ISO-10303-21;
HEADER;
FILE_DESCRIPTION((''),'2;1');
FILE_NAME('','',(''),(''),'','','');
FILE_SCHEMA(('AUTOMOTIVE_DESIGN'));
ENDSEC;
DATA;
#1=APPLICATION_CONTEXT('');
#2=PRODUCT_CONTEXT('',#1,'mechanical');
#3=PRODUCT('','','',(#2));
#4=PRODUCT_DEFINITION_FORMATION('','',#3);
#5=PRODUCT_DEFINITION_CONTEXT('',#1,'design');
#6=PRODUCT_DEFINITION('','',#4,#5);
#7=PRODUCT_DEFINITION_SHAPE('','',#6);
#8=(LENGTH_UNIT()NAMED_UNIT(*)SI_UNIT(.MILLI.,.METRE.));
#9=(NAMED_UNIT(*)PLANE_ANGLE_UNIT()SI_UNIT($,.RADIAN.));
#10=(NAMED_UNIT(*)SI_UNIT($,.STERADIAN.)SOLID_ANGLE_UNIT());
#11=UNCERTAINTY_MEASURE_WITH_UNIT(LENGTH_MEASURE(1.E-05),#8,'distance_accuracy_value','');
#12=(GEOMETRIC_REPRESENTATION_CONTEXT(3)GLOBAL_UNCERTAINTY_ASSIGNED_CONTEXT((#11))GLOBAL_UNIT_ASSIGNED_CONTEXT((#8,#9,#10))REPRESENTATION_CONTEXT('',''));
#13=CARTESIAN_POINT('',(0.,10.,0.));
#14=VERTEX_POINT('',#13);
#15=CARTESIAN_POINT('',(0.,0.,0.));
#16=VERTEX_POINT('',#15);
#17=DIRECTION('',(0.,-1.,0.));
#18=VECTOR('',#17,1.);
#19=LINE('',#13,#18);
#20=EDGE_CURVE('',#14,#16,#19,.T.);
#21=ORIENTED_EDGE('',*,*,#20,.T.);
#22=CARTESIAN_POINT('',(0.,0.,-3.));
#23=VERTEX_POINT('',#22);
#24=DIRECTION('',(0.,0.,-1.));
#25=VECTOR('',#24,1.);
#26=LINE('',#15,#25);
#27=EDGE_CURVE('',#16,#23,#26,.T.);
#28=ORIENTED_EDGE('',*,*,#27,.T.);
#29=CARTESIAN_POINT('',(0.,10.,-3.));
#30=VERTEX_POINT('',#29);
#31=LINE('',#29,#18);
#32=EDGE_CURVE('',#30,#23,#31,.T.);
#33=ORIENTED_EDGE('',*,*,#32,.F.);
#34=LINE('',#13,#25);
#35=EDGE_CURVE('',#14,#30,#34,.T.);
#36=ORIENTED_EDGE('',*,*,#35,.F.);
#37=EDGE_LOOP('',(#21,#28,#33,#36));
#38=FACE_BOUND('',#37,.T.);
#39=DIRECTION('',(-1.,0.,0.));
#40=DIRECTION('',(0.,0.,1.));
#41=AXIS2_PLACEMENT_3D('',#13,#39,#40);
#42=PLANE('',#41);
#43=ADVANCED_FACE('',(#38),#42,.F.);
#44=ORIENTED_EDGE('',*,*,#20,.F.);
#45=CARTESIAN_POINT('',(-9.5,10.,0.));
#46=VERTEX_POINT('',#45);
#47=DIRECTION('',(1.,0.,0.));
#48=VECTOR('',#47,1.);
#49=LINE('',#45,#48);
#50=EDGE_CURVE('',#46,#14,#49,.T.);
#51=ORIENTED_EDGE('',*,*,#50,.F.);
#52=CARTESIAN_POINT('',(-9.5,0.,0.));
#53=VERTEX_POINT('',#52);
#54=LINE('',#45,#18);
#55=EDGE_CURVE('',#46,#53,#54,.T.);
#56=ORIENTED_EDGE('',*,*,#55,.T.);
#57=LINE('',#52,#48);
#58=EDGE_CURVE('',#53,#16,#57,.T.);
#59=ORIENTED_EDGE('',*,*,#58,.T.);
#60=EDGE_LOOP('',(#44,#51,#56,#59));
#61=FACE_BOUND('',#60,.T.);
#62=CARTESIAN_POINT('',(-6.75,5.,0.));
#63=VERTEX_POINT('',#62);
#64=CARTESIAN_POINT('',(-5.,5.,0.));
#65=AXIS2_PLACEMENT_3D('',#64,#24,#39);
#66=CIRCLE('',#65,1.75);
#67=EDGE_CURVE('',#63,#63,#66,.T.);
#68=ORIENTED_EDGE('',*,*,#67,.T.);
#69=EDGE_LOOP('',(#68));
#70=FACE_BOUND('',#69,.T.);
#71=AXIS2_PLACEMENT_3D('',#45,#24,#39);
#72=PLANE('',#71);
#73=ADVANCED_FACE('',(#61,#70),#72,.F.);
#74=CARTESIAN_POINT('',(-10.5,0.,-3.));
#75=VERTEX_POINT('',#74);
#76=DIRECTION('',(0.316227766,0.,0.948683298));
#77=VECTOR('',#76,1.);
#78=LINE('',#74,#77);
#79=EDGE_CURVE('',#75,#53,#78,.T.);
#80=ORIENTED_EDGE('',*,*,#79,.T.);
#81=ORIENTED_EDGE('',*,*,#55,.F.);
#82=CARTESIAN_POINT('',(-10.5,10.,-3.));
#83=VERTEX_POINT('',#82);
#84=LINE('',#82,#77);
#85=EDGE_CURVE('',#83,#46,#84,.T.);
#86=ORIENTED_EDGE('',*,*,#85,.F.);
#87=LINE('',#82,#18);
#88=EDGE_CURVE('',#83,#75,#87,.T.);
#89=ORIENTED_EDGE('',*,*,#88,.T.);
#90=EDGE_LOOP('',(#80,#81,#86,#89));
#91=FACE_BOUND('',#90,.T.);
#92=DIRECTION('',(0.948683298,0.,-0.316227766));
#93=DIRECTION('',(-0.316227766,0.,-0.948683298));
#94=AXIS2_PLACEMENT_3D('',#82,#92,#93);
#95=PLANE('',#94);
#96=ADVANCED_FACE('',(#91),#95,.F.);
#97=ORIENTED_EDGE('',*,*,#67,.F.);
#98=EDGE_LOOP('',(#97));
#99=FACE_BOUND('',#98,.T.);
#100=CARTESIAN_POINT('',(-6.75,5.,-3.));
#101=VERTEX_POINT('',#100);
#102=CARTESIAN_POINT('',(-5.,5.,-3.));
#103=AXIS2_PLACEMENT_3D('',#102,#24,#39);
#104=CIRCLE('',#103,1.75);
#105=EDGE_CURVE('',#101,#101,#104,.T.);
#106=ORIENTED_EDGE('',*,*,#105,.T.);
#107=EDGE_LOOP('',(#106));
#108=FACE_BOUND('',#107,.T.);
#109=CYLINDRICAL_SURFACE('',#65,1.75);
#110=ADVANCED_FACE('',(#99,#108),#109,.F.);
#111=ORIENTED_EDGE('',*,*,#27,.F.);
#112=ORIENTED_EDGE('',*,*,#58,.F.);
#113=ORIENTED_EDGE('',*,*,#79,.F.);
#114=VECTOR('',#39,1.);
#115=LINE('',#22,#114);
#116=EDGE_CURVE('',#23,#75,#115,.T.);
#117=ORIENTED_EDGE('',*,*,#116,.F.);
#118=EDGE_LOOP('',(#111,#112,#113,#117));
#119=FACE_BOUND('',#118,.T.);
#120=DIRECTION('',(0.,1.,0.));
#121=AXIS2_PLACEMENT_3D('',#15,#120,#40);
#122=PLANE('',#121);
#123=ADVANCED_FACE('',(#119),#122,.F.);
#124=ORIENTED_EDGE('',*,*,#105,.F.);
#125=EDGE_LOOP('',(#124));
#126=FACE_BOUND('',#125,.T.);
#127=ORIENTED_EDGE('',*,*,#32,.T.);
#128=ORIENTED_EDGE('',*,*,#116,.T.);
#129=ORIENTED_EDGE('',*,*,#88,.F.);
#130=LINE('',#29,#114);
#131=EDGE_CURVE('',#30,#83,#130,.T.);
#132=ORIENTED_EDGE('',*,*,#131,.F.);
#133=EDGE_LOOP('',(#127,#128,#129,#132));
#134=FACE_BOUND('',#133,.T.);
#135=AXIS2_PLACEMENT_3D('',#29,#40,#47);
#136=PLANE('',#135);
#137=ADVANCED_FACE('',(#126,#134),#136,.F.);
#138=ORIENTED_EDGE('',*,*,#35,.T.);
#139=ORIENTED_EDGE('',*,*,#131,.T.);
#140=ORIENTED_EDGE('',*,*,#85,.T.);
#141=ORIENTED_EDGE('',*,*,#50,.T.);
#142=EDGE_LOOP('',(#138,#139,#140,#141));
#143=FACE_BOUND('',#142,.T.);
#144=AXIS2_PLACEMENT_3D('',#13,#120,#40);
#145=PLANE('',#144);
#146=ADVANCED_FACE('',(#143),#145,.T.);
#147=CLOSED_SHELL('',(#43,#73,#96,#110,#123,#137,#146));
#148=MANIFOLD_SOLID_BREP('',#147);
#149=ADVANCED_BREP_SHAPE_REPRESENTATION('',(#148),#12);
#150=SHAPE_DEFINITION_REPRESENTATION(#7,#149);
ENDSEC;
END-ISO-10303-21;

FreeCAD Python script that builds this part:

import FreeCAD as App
import Part
import Sketcher

doc = App.newDocument("Part")
body = doc.addObject("PartDesign::Body", "Body")

# Sketch on XZ plane
sketch1 = doc.addObject("Sketcher::SketchObject", "Sketch")
body.addObject(sketch1)
sketch1.AttachmentSupport = (doc.XZ_Plane, [""])
sketch1.MapMode = "FlatFace"
sketch1.addGeometry([
    Part.LineSegment(App.Vector(0, 0, 0), App.Vector(0, -3, 0)),
    Part.LineSegment(App.Vector(0, -3, 0), App.Vector(-10.5, -3, 0)),
    Part.LineSegment(App.Vector(-10.5, -3, 0), App.Vector(-9.5, 0, 0)),
    Part.LineSegment(App.Vector(-9.5, 0, 0), App.Vector(0, 0, 0)),
], False)
sketch1.addConstraint([
    Sketcher.Constraint("Coincident", 0, 2, 1, 1),
    Sketcher.Constraint("Coincident", 1, 2, 2, 1),
    Sketcher.Constraint("Coincident", 2, 2, 3, 1),
    Sketcher.Constraint("Coincident", 3, 2, 0, 1),
    Sketcher.Constraint("Vertical", 0),
    Sketcher.Constraint("Horizontal", 1),
    Sketcher.Constraint("Horizontal", 3),
    Sketcher.Constraint("Coincident", 3, 2, -1, 1),
    Sketcher.Constraint("DistanceY", 0, 2, 0, 1, 3.0),
    Sketcher.Constraint("DistanceX", 1, 2, 1, 1, 10.5),
    Sketcher.Constraint("DistanceX", 3, 1, 3, 2, 9.5),
])
pad1 = doc.addObject("PartDesign::Pad", "Pad")
body.addObject(pad1)
pad1.Profile = sketch1
pad1.Length = 10
pad1.Reversed = True

# Sketch on XY plane
sketch2 = doc.addObject("Sketcher::SketchObject", "Sketch001")
body.addObject(sketch2)
sketch2.AttachmentSupport = (doc.XY_Plane, [""])
sketch2.MapMode = "FlatFace"
sketch2.AttachmentOffset = App.Placement(App.Vector(0, 0, -3), App.Rotation())
sketch2.addGeometry(Part.Circle(App.Vector(-5, 5, 0), App.Vector(0, 0, 1), 1.8), False)
sketch2.addConstraint([
    Sketcher.Constraint("Diameter", 0, 3.5),
    Sketcher.Constraint("DistanceX", 0, 3, -1, 1, 5.0),
    Sketcher.Constraint("DistanceY", -1, 1, 0, 3, 5.0),
])
pocket1 = doc.addObject("PartDesign::Pocket", "Pocket")
body.addObject(pocket1)
pocket1.Profile = sketch2
pocket1.Type = "ThroughAll"
pocket1.Reversed = True

doc.recompute()
